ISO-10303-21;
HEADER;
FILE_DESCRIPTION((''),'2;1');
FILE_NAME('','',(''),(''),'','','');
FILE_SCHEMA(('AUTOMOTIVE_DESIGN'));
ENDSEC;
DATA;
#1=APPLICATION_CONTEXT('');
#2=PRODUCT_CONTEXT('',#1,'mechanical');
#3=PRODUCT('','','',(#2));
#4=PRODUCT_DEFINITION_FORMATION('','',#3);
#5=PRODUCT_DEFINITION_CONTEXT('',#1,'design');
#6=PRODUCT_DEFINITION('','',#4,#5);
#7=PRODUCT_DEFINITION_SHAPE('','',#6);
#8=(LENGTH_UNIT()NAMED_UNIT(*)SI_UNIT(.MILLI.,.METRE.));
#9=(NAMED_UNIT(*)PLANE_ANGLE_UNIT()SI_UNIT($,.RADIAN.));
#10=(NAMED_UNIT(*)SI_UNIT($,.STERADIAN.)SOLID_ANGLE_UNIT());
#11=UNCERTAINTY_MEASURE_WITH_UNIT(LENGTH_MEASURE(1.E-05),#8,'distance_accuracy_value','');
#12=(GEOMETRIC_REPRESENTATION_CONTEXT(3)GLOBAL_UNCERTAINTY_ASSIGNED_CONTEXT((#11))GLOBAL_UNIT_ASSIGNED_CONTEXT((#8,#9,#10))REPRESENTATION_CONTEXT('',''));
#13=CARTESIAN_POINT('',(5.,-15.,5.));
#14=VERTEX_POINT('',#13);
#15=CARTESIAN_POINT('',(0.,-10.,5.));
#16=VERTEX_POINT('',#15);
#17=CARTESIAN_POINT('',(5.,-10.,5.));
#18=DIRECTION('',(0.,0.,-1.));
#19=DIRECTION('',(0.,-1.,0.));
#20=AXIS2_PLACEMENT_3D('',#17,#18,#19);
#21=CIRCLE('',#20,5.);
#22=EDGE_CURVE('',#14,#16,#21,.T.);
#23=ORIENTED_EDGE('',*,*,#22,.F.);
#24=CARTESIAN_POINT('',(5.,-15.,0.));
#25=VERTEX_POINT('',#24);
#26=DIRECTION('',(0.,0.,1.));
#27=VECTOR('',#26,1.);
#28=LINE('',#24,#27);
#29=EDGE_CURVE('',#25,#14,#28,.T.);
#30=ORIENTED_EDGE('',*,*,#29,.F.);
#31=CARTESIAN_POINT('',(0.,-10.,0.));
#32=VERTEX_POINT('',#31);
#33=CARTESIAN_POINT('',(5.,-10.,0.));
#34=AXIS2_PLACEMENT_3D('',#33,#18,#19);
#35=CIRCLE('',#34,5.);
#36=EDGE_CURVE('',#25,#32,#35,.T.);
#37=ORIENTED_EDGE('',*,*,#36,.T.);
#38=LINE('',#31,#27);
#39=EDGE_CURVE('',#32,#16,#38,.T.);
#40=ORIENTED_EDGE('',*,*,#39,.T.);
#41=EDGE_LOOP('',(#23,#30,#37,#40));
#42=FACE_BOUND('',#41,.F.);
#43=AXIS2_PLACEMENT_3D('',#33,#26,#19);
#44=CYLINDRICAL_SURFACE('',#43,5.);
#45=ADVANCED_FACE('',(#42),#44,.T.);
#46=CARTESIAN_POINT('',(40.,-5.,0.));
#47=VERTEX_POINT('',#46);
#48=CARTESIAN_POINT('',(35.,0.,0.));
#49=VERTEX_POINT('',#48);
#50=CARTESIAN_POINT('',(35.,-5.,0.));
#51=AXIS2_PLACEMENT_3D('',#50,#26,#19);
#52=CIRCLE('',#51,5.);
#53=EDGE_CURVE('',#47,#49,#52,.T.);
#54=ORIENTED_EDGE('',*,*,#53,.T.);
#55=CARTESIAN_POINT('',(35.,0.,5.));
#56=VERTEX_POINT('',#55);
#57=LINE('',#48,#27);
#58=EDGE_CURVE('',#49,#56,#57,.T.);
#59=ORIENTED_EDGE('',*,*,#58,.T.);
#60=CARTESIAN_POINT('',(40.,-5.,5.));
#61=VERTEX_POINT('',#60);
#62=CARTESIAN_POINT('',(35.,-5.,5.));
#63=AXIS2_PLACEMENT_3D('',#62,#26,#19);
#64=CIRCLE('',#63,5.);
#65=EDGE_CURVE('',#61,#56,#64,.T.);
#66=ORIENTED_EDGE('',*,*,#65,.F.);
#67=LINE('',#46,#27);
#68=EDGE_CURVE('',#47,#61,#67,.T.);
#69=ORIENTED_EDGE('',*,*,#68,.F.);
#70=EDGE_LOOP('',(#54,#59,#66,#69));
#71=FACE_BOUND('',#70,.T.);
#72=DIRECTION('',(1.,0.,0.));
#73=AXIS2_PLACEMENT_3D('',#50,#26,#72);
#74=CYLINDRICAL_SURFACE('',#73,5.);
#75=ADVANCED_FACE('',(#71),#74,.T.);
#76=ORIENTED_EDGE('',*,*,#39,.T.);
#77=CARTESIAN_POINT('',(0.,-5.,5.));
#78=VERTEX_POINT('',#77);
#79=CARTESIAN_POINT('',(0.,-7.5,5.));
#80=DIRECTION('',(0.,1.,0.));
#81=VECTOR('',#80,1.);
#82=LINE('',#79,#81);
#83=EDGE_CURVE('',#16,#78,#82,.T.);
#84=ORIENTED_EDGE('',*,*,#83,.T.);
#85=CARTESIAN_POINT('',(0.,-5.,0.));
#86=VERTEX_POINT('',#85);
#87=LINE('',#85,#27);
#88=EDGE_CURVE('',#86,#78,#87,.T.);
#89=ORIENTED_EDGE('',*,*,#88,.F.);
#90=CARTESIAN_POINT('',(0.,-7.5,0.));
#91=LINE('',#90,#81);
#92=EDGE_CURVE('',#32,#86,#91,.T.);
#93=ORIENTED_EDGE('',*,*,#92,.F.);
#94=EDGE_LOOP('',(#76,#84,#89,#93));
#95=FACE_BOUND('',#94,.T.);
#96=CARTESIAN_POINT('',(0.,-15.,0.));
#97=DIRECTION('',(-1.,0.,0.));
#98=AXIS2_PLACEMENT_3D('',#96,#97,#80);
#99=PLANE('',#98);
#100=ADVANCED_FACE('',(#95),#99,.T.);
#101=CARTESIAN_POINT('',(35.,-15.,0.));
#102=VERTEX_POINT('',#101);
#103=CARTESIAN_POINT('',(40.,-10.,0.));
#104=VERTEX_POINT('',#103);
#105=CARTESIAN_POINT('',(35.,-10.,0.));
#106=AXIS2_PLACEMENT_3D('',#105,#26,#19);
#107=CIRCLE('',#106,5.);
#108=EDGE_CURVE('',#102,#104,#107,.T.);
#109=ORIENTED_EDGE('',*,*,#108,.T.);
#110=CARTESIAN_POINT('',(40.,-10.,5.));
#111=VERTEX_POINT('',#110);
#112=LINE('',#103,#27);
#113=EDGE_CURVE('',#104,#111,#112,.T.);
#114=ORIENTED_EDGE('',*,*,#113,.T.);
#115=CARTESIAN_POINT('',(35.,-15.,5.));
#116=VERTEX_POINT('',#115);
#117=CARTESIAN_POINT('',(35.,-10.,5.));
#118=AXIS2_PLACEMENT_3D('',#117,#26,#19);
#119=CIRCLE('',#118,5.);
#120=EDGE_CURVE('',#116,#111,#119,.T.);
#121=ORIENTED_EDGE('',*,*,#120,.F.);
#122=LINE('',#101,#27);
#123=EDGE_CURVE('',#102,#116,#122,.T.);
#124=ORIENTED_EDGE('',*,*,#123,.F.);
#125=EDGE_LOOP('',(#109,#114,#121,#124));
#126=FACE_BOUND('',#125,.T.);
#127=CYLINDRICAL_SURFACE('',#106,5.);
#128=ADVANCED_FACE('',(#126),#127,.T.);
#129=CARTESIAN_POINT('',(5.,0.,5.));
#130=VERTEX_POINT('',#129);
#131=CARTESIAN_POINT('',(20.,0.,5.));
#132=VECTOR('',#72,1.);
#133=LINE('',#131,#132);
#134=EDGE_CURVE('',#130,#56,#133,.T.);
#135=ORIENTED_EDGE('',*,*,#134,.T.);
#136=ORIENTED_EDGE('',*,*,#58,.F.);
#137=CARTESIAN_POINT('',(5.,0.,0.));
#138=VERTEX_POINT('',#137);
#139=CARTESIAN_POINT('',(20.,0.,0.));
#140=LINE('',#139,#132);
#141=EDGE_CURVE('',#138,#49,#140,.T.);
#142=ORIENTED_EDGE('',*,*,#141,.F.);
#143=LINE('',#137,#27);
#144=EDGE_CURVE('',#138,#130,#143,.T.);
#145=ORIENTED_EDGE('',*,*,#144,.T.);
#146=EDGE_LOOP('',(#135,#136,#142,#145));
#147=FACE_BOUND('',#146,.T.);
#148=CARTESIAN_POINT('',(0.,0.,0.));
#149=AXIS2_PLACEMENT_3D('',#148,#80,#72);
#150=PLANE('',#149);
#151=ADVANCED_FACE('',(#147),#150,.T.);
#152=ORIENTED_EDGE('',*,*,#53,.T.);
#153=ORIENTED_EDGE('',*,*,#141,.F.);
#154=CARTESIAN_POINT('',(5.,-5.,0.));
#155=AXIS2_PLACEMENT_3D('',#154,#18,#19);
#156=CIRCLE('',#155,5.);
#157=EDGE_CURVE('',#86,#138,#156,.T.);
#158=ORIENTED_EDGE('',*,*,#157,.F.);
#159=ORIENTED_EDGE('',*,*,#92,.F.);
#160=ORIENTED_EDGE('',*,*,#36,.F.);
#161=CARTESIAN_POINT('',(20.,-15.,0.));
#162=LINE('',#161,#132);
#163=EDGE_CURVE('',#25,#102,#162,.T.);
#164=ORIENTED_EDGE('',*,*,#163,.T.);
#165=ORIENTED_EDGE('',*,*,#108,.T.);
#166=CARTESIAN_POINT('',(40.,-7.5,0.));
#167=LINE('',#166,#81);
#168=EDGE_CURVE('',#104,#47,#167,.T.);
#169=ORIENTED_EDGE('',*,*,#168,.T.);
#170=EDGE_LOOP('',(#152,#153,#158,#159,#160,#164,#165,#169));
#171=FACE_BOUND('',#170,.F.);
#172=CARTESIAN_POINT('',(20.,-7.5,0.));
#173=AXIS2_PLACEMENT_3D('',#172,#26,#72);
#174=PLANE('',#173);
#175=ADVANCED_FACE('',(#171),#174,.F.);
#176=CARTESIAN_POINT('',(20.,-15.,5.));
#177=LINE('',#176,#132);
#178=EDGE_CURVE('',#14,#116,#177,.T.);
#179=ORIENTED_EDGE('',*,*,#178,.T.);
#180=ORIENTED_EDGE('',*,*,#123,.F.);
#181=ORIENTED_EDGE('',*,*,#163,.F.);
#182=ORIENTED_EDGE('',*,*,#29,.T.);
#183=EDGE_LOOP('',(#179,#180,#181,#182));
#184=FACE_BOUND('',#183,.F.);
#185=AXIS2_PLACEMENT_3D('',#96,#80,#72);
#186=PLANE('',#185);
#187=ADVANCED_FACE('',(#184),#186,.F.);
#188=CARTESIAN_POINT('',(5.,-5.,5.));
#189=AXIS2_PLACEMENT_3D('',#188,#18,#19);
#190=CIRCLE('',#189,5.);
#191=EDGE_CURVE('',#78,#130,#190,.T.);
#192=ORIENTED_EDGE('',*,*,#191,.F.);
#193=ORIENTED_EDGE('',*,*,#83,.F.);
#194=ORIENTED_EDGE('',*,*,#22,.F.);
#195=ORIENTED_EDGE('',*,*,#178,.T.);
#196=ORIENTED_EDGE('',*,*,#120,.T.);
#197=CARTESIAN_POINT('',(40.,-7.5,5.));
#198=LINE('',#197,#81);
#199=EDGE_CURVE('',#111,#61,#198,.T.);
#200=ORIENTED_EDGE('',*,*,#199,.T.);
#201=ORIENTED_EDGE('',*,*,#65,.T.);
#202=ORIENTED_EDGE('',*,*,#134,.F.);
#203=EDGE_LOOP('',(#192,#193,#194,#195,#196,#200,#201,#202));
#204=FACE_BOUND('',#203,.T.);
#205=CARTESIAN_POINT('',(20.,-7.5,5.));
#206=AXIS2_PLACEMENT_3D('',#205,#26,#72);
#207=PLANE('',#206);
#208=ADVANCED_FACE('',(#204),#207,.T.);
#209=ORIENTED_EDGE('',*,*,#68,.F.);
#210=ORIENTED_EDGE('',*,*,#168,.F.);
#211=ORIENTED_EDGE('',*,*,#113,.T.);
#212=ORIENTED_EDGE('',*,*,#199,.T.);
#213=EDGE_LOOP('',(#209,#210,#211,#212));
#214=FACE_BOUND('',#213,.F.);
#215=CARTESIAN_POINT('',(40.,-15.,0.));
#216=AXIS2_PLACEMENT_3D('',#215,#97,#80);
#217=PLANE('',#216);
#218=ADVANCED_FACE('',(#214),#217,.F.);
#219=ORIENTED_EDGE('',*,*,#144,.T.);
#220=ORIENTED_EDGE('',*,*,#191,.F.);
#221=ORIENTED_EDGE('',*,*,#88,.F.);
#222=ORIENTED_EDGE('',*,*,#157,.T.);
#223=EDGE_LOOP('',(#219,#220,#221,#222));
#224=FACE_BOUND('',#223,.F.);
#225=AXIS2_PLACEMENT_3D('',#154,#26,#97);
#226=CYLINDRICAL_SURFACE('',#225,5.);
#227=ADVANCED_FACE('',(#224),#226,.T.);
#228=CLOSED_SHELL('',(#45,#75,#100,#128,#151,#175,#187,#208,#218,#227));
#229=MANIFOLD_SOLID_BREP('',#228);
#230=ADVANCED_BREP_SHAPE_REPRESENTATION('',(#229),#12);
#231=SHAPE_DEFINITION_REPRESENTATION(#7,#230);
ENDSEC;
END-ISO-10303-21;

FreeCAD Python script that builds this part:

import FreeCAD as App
import Part
import Sketcher

V = App.Vector
Q = App.Units.Quantity


def edges_at(feature, points):
    """Names of the edges that pass closest to the given points."""
    edges = feature.Shape.Edges
    near = lambda p: min(range(len(edges)), key=lambda i: edges[i].distToShape(Part.Vertex(*p))[0])
    return sorted({f"Edge{near(p) + 1}" for p in points})

doc = App.newDocument("Part")
params = doc.addObject("Spreadsheet::Sheet", "Params")
for row, (alias, value) in enumerate([
    ("sketch1_width", "40 mm"),
    ("sketch1_height", "15 mm"),
    ("pad1_length", "5 mm"),
    ("fillet_radius", "5 mm"),
    ("fillet2_radius", "5 mm"),
], start=1):
    params.set(f"A{row}", alias)
    params.set(f"B{row}", "=" + value)
    params.setAlias(f"B{row}", alias)

body = doc.addObject("PartDesign::Body", "Body")

# Sketch on XY plane
sketch1 = doc.addObject("Sketcher::SketchObject", "Sketch")
body.addObject(sketch1)
sketch1.AttachmentSupport = (doc.XY_Plane, [""])
sketch1.MapMode = "FlatFace"
sketch1.addGeometry(Part.LineSegment(V(0, 0, 0), V(0, -15, 0)), False)
sketch1.addGeometry(Part.LineSegment(V(0, -15, 0), V(40, -15, 0)), False)
sketch1.addGeometry(Part.LineSegment(V(40, -15, 0), V(40, 0, 0)), False)
sketch1.addGeometry(Part.LineSegment(V(40, 0, 0), V(0, 0, 0)), False)
sketch1.addConstraint(Sketcher.Constraint("Coincident", 0, 2, 1, 1))
sketch1.addConstraint(Sketcher.Constraint("Coincident", 1, 2, 2, 1))
sketch1.addConstraint(Sketcher.Constraint("Coincident", 2, 2, 3, 1))
sketch1.addConstraint(Sketcher.Constraint("Coincident", 3, 2, 0, 1))
sketch1.addConstraint(Sketcher.Constraint("Vertical", 0))
sketch1.addConstraint(Sketcher.Constraint("Horizontal", 1))
sketch1.addConstraint(Sketcher.Constraint("Vertical", 2))
sketch1.addConstraint(Sketcher.Constraint("Horizontal", 3))
sketch1.addConstraint(Sketcher.Constraint("Coincident", 3, 2, -1, 1))
sketch1.addConstraint(Sketcher.Constraint("DistanceX", 1, 1, 1, 2, Q("40 mm")))
sketch1.addConstraint(Sketcher.Constraint("DistanceY", 0, 2, 0, 1, Q("15 mm")))
sketch1.setExpression("Constraints[9]", "Params.sketch1_width")
sketch1.setExpression("Constraints[10]", "Params.sketch1_height")
pad1 = doc.addObject("PartDesign::Pad", "Pad")
body.addObject(pad1)
pad1.Profile = sketch1
pad1.setExpression("Length", "Params.pad1_length")
doc.recompute()

fillet = doc.addObject("PartDesign::Fillet", "Fillet")
body.addObject(fillet)
fillet.Base = (pad1, edges_at(pad1, [(40, -15, 2.5), (40, 0, 2.5)]))
fillet.setExpression("Radius", "Params.fillet_radius")
doc.recompute()

fillet2 = doc.addObject("PartDesign::Fillet", "Fillet001")
body.addObject(fillet2)
fillet2.Base = (fillet, edges_at(fillet, [(0, -15, 2.5), (0, 0, 2.5)]))
fillet2.setExpression("Radius", "Params.fillet2_radius")

doc.recompute()
